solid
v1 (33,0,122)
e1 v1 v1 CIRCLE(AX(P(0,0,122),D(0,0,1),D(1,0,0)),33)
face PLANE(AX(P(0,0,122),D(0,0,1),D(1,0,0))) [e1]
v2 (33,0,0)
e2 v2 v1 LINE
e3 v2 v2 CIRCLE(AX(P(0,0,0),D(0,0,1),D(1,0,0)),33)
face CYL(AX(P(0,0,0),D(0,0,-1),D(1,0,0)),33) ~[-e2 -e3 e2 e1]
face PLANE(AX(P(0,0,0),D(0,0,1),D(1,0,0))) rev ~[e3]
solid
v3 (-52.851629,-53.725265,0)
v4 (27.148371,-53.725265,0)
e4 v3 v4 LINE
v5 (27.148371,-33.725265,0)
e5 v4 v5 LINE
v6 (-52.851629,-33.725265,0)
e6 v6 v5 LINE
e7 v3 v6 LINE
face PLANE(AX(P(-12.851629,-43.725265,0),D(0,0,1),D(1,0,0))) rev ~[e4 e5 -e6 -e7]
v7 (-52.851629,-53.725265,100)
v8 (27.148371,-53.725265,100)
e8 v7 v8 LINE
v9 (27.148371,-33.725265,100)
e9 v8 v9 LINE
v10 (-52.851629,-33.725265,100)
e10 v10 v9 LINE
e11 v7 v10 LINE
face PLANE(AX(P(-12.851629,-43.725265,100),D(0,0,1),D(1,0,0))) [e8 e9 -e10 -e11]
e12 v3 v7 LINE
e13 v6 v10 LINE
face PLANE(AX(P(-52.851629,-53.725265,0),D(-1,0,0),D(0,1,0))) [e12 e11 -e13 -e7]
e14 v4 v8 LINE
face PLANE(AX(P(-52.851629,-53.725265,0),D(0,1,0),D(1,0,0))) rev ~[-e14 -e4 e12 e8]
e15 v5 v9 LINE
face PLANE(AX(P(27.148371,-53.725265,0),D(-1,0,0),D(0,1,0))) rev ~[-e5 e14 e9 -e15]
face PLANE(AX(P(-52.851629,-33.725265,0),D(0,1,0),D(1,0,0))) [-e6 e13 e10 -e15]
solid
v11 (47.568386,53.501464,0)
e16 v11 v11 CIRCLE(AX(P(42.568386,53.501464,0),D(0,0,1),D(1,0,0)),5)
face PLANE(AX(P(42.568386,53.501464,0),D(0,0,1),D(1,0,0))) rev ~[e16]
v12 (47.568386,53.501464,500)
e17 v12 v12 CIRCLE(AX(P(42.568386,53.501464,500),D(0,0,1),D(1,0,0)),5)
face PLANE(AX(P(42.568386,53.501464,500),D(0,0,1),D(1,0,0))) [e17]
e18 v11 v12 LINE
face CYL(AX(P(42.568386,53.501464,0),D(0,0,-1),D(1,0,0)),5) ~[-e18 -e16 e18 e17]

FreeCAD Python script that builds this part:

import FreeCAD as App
import Part
import Sketcher
from FreeCAD import Vector


def add_polygon(sketch, points):
    """Adds a closed chain of lines whose ends are joined by coincident constraints."""
    first, n = sketch.GeometryCount, len(points)
    for a, b in zip(points, points[1:] + points[:1]):
        sketch.addGeometry(Part.LineSegment(App.Vector(*a, 0), App.Vector(*b, 0)), False)
    for i in range(n):
        sketch.addConstraint(Sketcher.Constraint("Coincident", first + i, 2, first + (i + 1) % n, 1))

doc = App.newDocument("Part")
body = doc.addObject("PartDesign::Body", "Body")

sketch1 = doc.addObject("Sketcher::SketchObject", "Sketch")
body.addObject(sketch1)
sketch1.AttachmentSupport = (doc.XY_Plane, [""])
sketch1.MapMode = "FlatFace"
sketch1.addGeometry(Part.Circle(Vector(0, 0, 0), Vector(0, 0, 1), 33), False)
sketch1.addConstraint([
    Sketcher.Constraint("Coincident", 0, 3, -1, 1),
    Sketcher.Constraint("Diameter", 0, 66.0),
])
pad1 = doc.addObject("PartDesign::Pad", "Pad")
body.addObject(pad1)
pad1.Profile = sketch1
pad1.Length = 122
body2 = doc.addObject("PartDesign::Body", "Body001")

sketch2 = doc.addObject("Sketcher::SketchObject", "Sketch001")
body2.addObject(sketch2)
sketch2.AttachmentSupport = (doc.getObject("XY_Plane001"), [""])
sketch2.MapMode = "FlatFace"
sketch2.addGeometry(Part.Circle(Vector(42.568386, 53.501464, 0), Vector(0, 0, 1), 5), False)
sketch2.addConstraint([
    Sketcher.Constraint("Diameter", 0, 10.0),
    Sketcher.Constraint("DistanceX", -1, 1, 0, 3, 42.568386),
    Sketcher.Constraint("DistanceY", -1, 1, 0, 3, 53.501464),
])
pad2 = doc.addObject("PartDesign::Pad", "Pad001")
body2.addObject(pad2)
pad2.Profile = sketch2
pad2.Length = 500
body3 = doc.addObject("PartDesign::Body", "Body002")

sketch3 = doc.addObject("Sketcher::SketchObject", "Sketch002")
body3.addObject(sketch3)
sketch3.AttachmentSupport = (doc.getObject("XY_Plane002"), [""])
sketch3.MapMode = "FlatFace"
add_polygon(sketch3, [(-52.851629, -33.725265), (-52.851629, -53.725265), (27.148371, -53.725265), (27.148371, -33.725265)])
sketch3.addConstraint([
    Sketcher.Constraint("Vertical", 0),
    Sketcher.Constraint("Horizontal", 1),
    Sketcher.Constraint("Vertical", 2),
    Sketcher.Constraint("Horizontal", 3),
    Sketcher.Constraint("DistanceX", 1, 1, 1, 2, 80.0),
    Sketcher.Constraint("DistanceY", 0, 2, 0, 1, 20.0),
    Sketcher.Constraint("DistanceX", 0, 2, -1, 1, 52.851629),
    Sketcher.Constraint("DistanceY", 0, 2, -1, 1, 53.725265),
])
pad3 = doc.addObject("PartDesign::Pad", "Pad002")
body3.addObject(pad3)
pad3.Profile = sketch3
pad3.Length = 100

doc.recompute()
